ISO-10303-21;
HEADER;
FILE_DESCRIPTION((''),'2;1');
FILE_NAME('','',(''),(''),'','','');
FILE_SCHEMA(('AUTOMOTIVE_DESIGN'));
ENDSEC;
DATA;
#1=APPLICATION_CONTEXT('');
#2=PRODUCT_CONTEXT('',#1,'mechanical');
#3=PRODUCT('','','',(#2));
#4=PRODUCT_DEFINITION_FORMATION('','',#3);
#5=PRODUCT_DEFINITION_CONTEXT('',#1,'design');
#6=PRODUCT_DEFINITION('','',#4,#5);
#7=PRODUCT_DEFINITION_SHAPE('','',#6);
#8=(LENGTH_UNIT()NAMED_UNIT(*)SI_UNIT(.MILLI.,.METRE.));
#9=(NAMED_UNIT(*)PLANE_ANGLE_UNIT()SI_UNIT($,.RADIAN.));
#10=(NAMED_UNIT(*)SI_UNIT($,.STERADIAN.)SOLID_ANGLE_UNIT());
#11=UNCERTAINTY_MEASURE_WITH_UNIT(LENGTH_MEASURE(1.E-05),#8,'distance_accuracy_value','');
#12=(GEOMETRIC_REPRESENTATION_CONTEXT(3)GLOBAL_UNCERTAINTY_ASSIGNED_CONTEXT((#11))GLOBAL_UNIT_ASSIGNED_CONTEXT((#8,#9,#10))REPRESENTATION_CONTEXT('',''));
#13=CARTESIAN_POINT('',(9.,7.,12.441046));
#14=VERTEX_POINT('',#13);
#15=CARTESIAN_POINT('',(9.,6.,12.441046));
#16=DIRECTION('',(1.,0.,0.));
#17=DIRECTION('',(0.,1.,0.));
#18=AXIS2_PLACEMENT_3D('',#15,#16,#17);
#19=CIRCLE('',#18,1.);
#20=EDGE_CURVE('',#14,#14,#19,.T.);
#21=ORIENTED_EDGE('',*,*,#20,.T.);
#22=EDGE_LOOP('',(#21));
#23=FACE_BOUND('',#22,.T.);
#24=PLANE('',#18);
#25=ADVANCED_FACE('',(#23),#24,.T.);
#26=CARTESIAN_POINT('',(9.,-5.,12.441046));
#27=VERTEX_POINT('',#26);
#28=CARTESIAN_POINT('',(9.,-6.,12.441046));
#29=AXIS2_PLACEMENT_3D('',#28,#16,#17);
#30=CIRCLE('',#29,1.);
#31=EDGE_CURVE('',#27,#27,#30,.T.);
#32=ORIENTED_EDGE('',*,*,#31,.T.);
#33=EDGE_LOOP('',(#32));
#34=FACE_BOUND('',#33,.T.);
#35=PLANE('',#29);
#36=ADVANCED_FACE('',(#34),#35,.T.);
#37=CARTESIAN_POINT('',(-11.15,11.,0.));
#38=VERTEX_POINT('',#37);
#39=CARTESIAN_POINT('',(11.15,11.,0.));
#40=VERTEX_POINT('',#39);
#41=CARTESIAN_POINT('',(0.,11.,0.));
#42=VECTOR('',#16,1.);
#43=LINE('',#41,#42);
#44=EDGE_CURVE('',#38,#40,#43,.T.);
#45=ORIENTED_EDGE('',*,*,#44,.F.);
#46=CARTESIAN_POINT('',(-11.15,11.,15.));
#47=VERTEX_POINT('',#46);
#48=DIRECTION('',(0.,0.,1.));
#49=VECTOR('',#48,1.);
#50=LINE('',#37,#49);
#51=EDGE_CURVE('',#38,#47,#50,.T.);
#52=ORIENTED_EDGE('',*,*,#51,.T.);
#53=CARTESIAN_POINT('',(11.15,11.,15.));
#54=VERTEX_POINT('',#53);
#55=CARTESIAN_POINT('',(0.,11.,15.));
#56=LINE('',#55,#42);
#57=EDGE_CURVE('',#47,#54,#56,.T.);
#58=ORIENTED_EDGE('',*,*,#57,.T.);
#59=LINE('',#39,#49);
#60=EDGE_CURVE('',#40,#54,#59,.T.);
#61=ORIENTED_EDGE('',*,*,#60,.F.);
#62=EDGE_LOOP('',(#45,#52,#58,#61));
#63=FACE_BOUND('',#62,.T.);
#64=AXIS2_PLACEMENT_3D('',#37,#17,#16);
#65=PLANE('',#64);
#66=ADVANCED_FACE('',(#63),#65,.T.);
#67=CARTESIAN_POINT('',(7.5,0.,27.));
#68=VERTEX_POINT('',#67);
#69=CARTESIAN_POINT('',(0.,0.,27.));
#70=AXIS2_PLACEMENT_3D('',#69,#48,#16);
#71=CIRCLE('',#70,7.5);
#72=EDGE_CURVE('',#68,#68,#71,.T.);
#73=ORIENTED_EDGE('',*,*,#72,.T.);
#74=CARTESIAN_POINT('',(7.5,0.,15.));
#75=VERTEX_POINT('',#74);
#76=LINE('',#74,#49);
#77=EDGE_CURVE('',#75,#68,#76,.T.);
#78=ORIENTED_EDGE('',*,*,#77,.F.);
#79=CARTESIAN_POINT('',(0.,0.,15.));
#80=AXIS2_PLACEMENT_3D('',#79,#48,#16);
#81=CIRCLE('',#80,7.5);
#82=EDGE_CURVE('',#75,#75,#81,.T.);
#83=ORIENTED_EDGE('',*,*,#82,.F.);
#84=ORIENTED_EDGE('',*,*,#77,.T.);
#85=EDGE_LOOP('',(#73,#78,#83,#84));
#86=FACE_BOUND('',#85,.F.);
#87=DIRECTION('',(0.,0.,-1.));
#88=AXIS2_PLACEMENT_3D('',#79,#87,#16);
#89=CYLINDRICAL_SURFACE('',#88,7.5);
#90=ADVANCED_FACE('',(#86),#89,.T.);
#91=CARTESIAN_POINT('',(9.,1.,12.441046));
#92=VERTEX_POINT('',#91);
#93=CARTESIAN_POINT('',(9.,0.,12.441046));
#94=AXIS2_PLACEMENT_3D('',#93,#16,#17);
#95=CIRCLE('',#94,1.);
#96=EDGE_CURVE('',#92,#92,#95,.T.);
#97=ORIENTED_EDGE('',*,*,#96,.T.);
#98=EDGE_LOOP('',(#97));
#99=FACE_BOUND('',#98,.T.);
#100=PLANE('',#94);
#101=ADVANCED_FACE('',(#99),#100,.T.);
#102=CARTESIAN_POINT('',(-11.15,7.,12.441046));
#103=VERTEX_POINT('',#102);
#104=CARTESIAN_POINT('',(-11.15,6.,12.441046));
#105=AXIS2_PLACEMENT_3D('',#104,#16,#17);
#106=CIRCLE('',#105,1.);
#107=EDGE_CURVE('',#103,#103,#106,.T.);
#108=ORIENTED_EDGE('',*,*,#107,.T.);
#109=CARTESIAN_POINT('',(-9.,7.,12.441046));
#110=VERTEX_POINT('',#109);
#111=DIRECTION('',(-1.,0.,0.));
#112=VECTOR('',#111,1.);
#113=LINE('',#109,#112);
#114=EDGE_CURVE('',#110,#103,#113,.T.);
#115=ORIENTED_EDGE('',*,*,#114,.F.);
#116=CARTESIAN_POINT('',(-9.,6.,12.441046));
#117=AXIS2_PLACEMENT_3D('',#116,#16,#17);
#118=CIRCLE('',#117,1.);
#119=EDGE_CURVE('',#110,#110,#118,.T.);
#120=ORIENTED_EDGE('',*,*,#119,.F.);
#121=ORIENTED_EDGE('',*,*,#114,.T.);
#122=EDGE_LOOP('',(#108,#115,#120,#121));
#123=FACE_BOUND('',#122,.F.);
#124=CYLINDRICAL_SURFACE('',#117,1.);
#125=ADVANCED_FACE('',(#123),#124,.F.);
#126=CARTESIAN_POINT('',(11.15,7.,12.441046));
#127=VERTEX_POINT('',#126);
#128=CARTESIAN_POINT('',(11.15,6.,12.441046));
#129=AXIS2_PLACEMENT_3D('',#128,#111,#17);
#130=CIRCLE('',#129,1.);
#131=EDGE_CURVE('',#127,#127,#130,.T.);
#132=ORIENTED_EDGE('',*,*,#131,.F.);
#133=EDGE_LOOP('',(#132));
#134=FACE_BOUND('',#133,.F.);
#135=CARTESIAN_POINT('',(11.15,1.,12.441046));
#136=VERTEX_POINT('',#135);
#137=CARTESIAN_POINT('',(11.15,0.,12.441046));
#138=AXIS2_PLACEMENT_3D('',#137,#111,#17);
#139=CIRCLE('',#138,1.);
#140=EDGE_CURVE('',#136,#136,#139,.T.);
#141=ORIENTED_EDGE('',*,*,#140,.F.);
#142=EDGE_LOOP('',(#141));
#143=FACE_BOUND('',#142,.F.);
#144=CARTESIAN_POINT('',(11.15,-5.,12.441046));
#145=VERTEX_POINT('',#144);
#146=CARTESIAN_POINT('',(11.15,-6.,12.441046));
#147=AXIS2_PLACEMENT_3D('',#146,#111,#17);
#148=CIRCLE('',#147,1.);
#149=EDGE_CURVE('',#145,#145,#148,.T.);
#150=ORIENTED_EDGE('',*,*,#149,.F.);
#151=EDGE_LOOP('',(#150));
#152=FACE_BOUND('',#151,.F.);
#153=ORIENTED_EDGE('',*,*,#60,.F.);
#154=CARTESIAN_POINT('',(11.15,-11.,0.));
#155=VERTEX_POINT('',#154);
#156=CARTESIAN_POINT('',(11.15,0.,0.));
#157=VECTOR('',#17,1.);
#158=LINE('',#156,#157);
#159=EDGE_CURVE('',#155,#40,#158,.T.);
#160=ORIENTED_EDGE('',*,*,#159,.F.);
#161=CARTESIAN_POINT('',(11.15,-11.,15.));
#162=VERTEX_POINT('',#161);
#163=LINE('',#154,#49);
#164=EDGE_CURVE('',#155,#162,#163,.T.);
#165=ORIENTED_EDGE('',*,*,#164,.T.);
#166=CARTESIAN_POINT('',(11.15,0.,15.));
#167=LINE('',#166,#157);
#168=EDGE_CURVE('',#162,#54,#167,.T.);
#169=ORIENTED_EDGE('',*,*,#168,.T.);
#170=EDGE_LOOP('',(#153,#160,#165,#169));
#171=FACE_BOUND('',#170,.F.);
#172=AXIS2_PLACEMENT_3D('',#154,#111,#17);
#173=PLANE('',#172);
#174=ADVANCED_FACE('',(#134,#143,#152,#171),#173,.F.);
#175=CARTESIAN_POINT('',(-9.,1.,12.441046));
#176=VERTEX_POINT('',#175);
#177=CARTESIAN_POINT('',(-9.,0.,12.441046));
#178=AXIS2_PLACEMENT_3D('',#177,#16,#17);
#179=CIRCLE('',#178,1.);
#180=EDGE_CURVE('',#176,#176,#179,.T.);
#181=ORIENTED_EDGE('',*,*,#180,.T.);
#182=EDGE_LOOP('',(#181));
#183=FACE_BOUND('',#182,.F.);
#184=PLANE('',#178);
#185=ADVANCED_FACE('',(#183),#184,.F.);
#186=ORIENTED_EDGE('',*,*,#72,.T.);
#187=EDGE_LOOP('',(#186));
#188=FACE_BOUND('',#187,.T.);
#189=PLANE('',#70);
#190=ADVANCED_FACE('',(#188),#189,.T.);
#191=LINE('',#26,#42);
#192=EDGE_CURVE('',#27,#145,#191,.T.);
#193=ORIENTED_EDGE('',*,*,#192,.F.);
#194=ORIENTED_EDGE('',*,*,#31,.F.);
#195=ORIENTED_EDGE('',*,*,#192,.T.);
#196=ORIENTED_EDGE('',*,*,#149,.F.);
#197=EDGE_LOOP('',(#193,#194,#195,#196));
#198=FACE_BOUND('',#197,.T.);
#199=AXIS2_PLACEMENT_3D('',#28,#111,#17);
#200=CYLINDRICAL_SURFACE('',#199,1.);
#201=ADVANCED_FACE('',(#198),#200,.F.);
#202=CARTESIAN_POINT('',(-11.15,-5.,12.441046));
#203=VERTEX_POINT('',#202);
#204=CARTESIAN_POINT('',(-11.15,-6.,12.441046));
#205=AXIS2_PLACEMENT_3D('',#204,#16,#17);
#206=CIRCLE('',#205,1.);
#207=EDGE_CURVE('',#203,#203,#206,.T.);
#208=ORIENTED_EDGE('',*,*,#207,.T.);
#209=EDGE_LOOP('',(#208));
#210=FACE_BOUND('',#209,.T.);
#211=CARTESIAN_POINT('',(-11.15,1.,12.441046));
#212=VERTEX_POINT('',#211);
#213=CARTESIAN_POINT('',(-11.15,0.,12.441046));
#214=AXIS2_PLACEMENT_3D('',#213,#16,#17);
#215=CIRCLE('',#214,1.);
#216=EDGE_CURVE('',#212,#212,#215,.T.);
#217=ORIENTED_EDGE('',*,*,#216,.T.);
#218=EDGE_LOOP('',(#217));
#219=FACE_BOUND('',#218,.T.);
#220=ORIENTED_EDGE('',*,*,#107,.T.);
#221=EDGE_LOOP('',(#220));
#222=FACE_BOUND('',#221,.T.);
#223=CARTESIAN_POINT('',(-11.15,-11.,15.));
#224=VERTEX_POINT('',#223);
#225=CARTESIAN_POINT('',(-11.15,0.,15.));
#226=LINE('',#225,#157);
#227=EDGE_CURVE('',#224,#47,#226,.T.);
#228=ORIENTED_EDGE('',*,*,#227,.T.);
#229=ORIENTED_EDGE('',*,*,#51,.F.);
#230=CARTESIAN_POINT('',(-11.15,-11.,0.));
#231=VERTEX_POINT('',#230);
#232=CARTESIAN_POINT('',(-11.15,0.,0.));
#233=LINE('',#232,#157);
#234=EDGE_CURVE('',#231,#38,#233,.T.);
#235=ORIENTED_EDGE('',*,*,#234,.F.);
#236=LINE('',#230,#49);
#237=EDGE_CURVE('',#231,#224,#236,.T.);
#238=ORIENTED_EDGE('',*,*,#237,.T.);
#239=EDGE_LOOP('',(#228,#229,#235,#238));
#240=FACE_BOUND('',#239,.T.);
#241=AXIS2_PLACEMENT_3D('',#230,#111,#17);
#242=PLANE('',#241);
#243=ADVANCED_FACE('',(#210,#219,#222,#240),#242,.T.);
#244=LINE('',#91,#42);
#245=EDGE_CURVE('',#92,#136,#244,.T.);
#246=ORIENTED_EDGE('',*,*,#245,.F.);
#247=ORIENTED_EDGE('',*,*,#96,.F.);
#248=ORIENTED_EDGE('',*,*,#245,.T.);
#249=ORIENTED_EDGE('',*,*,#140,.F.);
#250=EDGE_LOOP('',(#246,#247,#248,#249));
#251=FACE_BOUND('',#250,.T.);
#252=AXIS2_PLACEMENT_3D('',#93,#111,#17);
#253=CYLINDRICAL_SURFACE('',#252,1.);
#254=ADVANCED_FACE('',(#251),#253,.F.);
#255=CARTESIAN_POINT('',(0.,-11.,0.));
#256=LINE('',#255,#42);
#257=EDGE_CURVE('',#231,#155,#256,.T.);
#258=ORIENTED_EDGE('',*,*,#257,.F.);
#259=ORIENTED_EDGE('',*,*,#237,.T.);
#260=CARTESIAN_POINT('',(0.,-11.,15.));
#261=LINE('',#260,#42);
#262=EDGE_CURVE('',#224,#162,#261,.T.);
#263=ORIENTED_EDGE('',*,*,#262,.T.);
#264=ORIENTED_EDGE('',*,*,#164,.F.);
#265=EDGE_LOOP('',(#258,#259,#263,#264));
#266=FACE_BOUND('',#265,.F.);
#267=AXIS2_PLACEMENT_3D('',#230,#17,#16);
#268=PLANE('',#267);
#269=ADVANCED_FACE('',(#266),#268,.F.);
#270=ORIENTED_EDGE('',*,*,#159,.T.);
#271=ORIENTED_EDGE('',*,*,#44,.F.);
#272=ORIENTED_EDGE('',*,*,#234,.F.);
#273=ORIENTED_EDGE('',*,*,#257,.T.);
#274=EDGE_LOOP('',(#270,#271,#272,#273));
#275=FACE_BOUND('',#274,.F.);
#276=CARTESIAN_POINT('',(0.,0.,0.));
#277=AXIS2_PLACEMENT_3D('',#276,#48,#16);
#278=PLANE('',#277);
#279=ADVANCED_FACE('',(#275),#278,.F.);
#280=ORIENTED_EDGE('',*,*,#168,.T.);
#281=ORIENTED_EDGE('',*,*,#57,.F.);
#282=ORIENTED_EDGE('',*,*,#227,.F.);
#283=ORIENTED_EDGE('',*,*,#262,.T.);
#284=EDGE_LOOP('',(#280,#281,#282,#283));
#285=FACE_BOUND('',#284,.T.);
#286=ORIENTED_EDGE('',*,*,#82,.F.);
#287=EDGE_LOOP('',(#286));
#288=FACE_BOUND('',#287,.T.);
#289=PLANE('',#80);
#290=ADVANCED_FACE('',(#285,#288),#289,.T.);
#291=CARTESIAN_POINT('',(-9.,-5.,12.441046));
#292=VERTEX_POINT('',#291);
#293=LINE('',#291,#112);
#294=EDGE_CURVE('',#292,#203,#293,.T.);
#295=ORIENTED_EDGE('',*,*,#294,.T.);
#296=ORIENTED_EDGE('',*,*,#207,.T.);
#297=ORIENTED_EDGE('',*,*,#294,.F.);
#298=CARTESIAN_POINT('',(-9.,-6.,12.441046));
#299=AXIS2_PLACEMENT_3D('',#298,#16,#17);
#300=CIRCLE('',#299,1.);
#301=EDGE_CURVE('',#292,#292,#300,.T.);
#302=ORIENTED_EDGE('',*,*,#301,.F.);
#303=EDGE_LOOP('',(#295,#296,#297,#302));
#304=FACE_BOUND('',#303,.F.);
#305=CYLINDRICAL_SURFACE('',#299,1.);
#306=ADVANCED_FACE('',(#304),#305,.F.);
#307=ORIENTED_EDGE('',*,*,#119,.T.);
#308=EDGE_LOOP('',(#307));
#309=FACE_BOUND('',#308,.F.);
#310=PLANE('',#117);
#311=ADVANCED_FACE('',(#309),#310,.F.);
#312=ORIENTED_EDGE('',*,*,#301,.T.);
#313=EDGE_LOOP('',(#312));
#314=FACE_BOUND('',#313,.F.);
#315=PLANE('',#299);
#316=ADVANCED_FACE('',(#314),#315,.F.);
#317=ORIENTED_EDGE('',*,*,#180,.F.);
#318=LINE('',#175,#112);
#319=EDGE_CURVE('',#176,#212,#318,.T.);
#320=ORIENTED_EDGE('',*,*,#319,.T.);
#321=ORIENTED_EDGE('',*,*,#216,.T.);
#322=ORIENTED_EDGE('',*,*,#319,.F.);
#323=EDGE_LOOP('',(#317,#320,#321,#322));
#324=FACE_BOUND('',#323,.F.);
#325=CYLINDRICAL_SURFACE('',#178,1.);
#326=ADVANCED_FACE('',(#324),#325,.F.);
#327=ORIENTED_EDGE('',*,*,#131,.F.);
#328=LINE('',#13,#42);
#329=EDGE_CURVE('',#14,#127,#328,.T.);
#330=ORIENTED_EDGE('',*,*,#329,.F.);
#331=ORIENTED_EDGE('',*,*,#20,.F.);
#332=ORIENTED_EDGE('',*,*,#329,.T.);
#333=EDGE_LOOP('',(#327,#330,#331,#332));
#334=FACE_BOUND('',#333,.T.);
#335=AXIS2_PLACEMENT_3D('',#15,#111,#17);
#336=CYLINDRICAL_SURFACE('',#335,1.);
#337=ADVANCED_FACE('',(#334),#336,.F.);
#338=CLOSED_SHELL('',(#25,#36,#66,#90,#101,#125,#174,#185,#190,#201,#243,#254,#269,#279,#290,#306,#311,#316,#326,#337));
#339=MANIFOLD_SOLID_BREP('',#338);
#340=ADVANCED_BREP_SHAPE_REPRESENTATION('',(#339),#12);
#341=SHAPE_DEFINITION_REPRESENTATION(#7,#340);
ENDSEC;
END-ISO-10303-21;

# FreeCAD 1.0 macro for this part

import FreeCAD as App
import Part
import Sketcher

V = App.Vector
Q = App.Units.Quantity

doc = App.newDocument("Part")
body = doc.addObject("PartDesign::Body", "Body")

# Sketch on XY plane
sketch1 = body.newObject("Sketcher::SketchObject", "Sketch")
sketch1.AttachmentSupport = (doc.getObject("XY_Plane"), [""])
sketch1.MapMode = "FlatFace"
sketch1.addGeometry([
    Part.LineSegment(V(-11, 11, 0), V(-11, -11, 0)),
    Part.LineSegment(V(-11, -11, 0), V(11, -11, 0)),
    Part.LineSegment(V(11, -11, 0), V(11, 11, 0)),
    Part.LineSegment(V(11, 11, 0), V(-11, 11, 0)),
], False)
sketch1.addConstraint([
    Sketcher.Constraint("Coincident", 0, 2, 1, 1),
    Sketcher.Constraint("Coincident", 1, 2, 2, 1),
    Sketcher.Constraint("Coincident", 2, 2, 3, 1),
    Sketcher.Constraint("Coincident", 3, 2, 0, 1),
    Sketcher.Constraint("Vertical", 0),
    Sketcher.Constraint("Horizontal", 1),
    Sketcher.Constraint("Vertical", 2),
    Sketcher.Constraint("Horizontal", 3),
    Sketcher.Constraint("Symmetric", 0, 2, 2, 2, -1, 1),
    Sketcher.Constraint("DistanceY", 0, 2, 0, 1, Q("22 mm")),
    Sketcher.Constraint("DistanceX", 1, 1, 1, 2, Q("22.3 mm")),
])
pad1 = body.newObject("PartDesign::Pad", "Pad")
pad1.Profile = sketch1
pad1.Length = 15

# Sketch on XY plane
sketch2 = body.newObject("Sketcher::SketchObject", "Sketch001")
sketch2.AttachmentSupport = (doc.getObject("XY_Plane"), [""])
sketch2.MapMode = "FlatFace"
sketch2.AttachmentOffset = App.Placement(V(0, 0, 15), App.Rotation())
sketch2.addGeometry(Part.Circle(V(0, 0, 0), V(0, 0, 1), 8), False)
sketch2.addConstraint([
    Sketcher.Constraint("Coincident", 0, 3, -1, 1),
    Sketcher.Constraint("Diameter", 0, Q("15 mm")),
])
pad2 = body.newObject("PartDesign::Pad", "Pad001")
pad2.Profile = sketch2
pad2.Length = 12

# Sketch on YZ plane
sketch3 = body.newObject("Sketcher::SketchObject", "Sketch002")
sketch3.AttachmentSupport = (doc.getObject("YZ_Plane"), [""])
sketch3.MapMode = "FlatFace"
sketch3.AttachmentOffset = App.Placement(V(0, 0, -9), App.Rotation())
sketch3.addGeometry([
    Part.Circle(V(6, 12.4, 0), V(0, 0, 1), 1),
    Part.Circle(V(0, 12.4, 0), V(0, 0, 1), 1),
    Part.Circle(V(-6, 12.4, 0), V(0, 0, 1), 1),
], False)
sketch3.addConstraint([
    Sketcher.Constraint("Equal", 0, 1),
    Sketcher.Constraint("Equal", 1, 2),
    Sketcher.Constraint("Symmetric", 0, 3, 2, 3, -2),
    Sketcher.Constraint("PointOnObject", 1, 3, -2),
    Sketcher.Constraint("Horizontal", 0, 3, 1, 3),
    Sketcher.Constraint("Diameter", 0, Q("2 mm")),
    Sketcher.Constraint("DistanceX", -1, 1, 0, 3, Q("6 mm")),
    Sketcher.Constraint("DistanceY", -1, 1, 0, 3, Q("12.441046 mm")),
])
pocket1 = body.newObject("PartDesign::Pocket", "Pocket")
pocket1.Profile = sketch3
pocket1.Length = 3

# Sketch on YZ plane
sketch4 = body.newObject("Sketcher::SketchObject", "Sketch003")
sketch4.AttachmentSupport = (doc.getObject("YZ_Plane"), [""])
sketch4.MapMode = "FlatFace"
sketch4.AttachmentOffset = App.Placement(V(0, 0, 9), App.Rotation())
sketch4.addGeometry([
    Part.Circle(V(6, 12.4, 0), V(0, 0, 1), 1),
    Part.Circle(V(0, 12.4, 0), V(0, 0, 1), 1),
    Part.Circle(V(-6, 12.4, 0), V(0, 0, 1), 1),
], False)
sketch4.addConstraint([
    Sketcher.Constraint("Equal", 0, 1),
    Sketcher.Constraint("Equal", 1, 2),
    Sketcher.Constraint("Symmetric", 0, 3, 2, 3, -2),
    Sketcher.Constraint("PointOnObject", 1, 3, -2),
    Sketcher.Constraint("Horizontal", 0, 3, 1, 3),
    Sketcher.Constraint("Diameter", 0, Q("2 mm")),
    Sketcher.Constraint("DistanceX", -1, 1, 0, 3, Q("6 mm")),
    Sketcher.Constraint("DistanceY", -1, 1, 0, 3, Q("12.441046 mm")),
])
pocket2 = body.newObject("PartDesign::Pocket", "Pocket001")
pocket2.Profile = sketch4
pocket2.Length = 4
pocket2.Reversed = True

doc.recompute()
